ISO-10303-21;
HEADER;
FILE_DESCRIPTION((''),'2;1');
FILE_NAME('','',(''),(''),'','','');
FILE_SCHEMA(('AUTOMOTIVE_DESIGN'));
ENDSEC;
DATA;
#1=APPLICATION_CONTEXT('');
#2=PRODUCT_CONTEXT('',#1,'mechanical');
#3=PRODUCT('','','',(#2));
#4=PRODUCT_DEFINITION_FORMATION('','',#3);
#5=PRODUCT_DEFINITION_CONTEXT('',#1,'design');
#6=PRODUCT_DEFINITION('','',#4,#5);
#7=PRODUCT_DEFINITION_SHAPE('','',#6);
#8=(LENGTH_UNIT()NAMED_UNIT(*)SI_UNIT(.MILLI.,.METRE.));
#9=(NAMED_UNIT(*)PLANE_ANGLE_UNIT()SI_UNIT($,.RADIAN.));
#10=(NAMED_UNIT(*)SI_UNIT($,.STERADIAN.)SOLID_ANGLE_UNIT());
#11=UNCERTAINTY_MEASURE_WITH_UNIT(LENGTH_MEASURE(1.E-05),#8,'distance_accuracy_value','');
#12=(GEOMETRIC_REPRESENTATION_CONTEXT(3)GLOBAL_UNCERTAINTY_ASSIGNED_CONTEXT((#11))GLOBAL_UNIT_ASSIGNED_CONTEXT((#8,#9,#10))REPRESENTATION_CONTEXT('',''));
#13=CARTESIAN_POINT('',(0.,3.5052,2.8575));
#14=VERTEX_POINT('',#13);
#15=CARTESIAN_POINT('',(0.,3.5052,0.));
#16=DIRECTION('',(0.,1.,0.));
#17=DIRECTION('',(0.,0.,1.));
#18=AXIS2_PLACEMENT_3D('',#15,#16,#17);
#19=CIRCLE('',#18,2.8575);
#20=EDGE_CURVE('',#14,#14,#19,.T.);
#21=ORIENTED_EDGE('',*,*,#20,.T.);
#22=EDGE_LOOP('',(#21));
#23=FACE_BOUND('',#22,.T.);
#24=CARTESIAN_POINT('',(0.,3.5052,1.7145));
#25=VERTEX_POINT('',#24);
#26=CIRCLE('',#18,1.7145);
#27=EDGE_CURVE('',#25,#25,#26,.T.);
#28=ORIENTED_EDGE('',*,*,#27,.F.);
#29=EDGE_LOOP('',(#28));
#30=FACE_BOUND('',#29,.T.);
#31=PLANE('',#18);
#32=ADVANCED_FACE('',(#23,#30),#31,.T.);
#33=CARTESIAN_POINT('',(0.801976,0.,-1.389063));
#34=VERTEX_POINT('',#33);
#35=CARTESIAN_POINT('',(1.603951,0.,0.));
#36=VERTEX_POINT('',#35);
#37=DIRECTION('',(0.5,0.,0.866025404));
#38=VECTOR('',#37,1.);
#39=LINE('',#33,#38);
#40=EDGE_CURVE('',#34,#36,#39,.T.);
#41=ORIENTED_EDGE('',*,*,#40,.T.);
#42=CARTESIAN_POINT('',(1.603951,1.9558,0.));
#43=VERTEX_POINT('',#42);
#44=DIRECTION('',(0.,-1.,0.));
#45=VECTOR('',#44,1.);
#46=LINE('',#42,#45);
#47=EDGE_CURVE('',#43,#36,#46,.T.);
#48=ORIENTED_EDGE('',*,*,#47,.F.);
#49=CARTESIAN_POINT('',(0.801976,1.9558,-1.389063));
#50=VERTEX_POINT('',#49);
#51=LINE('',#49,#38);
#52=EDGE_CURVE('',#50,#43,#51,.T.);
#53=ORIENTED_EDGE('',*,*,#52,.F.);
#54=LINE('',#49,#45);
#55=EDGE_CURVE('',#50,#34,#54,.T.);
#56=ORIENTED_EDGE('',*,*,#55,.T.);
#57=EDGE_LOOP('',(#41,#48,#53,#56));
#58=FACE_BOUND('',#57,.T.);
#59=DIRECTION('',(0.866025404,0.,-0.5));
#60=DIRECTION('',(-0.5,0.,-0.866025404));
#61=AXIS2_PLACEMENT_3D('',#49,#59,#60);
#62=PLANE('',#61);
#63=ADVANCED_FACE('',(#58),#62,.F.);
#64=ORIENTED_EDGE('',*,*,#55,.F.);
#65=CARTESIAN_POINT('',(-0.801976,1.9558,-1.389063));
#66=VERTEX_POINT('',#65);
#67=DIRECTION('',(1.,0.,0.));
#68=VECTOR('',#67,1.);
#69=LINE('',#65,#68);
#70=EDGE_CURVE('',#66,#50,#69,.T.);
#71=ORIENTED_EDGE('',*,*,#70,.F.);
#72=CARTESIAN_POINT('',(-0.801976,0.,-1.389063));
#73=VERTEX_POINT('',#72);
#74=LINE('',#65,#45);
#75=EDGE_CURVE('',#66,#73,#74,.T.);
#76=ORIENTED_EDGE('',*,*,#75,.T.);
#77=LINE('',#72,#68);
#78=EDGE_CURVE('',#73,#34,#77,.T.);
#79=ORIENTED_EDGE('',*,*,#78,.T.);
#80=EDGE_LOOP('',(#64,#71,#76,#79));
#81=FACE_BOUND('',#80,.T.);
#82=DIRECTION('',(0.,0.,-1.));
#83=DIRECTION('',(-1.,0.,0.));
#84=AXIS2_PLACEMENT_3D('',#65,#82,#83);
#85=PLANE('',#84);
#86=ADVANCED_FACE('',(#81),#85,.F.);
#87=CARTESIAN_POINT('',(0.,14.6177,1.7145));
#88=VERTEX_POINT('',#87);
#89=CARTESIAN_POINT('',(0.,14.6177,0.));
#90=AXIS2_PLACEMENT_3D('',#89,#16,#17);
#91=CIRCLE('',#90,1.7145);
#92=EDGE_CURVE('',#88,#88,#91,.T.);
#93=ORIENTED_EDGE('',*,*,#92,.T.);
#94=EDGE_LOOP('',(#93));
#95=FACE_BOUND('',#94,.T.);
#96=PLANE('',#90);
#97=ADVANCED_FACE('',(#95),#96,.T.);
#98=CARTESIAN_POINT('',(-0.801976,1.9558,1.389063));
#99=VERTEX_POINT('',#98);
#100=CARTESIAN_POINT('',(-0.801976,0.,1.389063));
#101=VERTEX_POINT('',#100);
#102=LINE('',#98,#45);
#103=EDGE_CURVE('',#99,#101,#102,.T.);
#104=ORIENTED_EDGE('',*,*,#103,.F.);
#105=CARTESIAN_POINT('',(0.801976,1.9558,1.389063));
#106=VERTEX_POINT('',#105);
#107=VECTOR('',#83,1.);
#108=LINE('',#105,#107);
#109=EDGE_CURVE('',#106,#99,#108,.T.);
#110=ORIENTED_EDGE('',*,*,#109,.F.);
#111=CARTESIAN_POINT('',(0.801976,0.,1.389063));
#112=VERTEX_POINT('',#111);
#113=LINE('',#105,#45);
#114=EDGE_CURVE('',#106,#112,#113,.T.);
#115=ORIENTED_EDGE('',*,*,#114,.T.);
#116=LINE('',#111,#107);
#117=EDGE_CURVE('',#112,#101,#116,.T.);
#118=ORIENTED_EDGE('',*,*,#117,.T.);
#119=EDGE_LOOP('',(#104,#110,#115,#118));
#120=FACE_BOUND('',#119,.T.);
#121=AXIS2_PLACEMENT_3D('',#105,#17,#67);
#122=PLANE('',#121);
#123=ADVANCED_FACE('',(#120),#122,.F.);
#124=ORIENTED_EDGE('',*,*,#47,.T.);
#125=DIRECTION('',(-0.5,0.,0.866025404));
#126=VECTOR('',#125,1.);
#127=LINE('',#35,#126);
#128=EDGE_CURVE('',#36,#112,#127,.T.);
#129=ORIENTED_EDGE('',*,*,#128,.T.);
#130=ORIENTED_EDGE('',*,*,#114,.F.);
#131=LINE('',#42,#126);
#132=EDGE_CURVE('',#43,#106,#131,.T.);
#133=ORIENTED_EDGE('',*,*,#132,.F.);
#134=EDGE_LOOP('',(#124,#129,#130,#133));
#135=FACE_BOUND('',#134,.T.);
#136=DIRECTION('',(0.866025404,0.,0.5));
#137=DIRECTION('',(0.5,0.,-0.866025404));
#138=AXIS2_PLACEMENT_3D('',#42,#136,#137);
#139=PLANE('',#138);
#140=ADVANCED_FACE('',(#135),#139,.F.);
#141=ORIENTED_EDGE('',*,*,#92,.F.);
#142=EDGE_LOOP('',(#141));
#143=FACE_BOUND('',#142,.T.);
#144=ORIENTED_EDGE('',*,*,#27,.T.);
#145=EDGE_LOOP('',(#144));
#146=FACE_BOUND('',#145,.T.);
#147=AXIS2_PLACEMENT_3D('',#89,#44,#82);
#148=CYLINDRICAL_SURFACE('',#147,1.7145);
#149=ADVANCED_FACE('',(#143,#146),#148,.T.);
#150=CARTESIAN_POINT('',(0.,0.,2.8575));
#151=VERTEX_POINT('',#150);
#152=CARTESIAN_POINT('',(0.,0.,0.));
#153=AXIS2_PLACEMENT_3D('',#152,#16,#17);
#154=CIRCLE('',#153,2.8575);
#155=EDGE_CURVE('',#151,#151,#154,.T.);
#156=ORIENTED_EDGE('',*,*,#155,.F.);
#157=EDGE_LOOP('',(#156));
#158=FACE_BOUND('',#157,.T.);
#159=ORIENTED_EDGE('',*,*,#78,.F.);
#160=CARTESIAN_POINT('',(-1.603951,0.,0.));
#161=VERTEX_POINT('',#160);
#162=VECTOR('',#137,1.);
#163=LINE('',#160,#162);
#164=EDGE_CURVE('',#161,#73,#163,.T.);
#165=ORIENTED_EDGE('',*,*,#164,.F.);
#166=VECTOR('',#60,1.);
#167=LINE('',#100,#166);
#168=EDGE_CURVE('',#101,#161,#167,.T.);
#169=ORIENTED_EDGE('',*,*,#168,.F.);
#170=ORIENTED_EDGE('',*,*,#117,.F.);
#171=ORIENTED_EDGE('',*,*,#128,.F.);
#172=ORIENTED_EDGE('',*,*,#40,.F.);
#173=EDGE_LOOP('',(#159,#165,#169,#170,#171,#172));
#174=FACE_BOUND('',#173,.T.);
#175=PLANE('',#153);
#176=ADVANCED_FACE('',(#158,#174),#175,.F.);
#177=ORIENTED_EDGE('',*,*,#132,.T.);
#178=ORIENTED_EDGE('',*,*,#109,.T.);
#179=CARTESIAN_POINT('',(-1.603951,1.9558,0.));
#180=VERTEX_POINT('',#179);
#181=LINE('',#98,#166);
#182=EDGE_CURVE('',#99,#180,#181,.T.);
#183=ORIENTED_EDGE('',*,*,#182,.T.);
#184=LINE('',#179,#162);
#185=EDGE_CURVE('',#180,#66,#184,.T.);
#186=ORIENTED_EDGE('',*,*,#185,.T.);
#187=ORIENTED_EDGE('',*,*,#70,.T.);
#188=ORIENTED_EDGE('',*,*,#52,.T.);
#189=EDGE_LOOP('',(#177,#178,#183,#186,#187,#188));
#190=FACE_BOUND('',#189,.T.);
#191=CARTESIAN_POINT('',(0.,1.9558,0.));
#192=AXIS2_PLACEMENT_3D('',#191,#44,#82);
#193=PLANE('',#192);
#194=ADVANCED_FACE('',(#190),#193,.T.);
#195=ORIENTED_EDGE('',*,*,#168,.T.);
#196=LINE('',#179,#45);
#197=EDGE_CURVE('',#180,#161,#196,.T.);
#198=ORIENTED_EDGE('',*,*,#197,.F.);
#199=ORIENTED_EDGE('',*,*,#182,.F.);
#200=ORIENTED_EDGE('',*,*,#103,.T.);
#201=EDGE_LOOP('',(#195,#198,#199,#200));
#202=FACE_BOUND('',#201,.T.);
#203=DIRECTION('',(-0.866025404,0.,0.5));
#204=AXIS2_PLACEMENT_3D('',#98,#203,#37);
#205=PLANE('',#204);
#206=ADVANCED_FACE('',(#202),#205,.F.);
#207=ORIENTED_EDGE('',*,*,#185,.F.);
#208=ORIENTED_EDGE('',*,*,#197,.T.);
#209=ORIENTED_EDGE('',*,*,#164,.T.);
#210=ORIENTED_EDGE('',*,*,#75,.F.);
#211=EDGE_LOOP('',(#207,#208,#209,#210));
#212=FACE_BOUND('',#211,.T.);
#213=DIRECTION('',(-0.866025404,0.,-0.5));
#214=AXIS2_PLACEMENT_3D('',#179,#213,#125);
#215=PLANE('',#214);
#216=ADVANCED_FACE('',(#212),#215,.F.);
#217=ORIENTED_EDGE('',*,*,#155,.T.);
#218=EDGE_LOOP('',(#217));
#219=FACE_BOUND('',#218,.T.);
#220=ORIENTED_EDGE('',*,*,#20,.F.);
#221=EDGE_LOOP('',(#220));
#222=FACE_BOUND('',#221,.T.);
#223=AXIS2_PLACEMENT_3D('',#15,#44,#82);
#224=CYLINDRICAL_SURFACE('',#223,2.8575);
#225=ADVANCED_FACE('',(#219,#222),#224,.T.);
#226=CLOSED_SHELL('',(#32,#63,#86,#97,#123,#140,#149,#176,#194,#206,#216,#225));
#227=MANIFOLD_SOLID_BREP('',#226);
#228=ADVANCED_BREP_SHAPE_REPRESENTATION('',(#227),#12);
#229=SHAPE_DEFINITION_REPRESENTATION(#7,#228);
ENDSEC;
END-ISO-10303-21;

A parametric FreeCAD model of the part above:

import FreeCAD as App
import Part
import Sketcher
from FreeCAD import Vector
Q = App.Units.Quantity


def add_polygon(sketch, points):
    """Adds a closed chain of lines whose ends are joined by coincident constraints."""
    first, n = sketch.GeometryCount, len(points)
    for a, b in zip(points, points[1:] + points[:1]):
        sketch.addGeometry(Part.LineSegment(App.Vector(*a, 0), App.Vector(*b, 0)), False)
    for i in range(n):
        sketch.addConstraint(Sketcher.Constraint("Coincident", first + i, 2, first + (i + 1) % n, 1))

doc = App.newDocument("Part")
body = doc.addObject("PartDesign::Body", "Body")

# Sketch on XZ plane
sketch1 = doc.addObject("Sketcher::SketchObject", "Sketch")
body.addObject(sketch1)
sketch1.AttachmentSupport = (doc.XZ_Plane, [""])
sketch1.MapMode = "FlatFace"
sketch1.addGeometry(Part.Circle(Vector(0, 0, 0), Vector(0, 0, 1), 2.9), False)
sketch1.addConstraint(Sketcher.Constraint("Coincident", 0, 3, -1, 1))
sketch1.addConstraint(Sketcher.Constraint("Diameter", 0, Q("0.225 in")))
pad1 = doc.addObject("PartDesign::Pad", "Pad")
body.addObject(pad1)
pad1.Profile = sketch1
pad1.Length = Q("0.138 in")
pad1.Reversed = True

# Sketch on XZ plane
sketch2 = doc.addObject("Sketcher::SketchObject", "Sketch001")
body.addObject(sketch2)
sketch2.AttachmentSupport = (doc.XZ_Plane, [""])
sketch2.MapMode = "FlatFace"
add_polygon(sketch2, [(1.6, 0), (0.8, 1.4), (-0.8, 1.4), (-1.6, 0), (-0.8, -1.4), (0.8, -1.4)])  # lines 0-5
sketch2.addConstraint(Sketcher.Constraint("Horizontal", 1))
sketch2.addConstraint(Sketcher.Constraint("Horizontal", 4))
sketch2.addConstraint(Sketcher.Constraint("Symmetric", 0, 2, 3, 2, -1, 1))
sketch2.addConstraint(Sketcher.Constraint("Symmetric", 2, 2, 5, 2, -1, 1))
sketch2.addConstraint(Sketcher.Constraint("PointOnObject", 2, 2, -1))
sketch2.addConstraint(Sketcher.Constraint("Parallel", 2, 5))
sketch2.addConstraint(Sketcher.Constraint("Vertical", 1, 2, 3, 2))
sketch2.addConstraint(Sketcher.Constraint("Angle", 0, Q("120 deg")))
sketch2.addConstraint(Sketcher.Constraint("DistanceY", 3, 2, 1, 2, Q("0.109375 in")))
sketch2.addConstraint(Sketcher.Constraint("DistanceX", 1, 2, 1, 1, 1.603951))
pocket1 = doc.addObject("PartDesign::Pocket", "Pocket")
body.addObject(pocket1)
pocket1.Profile = sketch2
pocket1.Length = Q("0.077 in")

# Sketch on XZ plane
sketch3 = doc.addObject("Sketcher::SketchObject", "Sketch002")
body.addObject(sketch3)
sketch3.AttachmentSupport = (doc.XZ_Plane, [""])
sketch3.MapMode = "FlatFace"
sketch3.AttachmentOffset = App.Placement(Vector(0, 0, -0.138 * 25.4), App.Rotation())
sketch3.addGeometry(Part.Circle(Vector(0, 0, 0), Vector(0, 0, 1), 1.7), False)
sketch3.addConstraint(Sketcher.Constraint("Coincident", 0, 3, -1, 1))
sketch3.addConstraint(Sketcher.Constraint("Diameter", 0, Q("0.135 in")))
pad2 = doc.addObject("PartDesign::Pad", "Pad001")
body.addObject(pad2)
pad2.Profile = sketch3
pad2.Length = Q("0.4375 in")
pad2.Reversed = True

doc.recompute()
